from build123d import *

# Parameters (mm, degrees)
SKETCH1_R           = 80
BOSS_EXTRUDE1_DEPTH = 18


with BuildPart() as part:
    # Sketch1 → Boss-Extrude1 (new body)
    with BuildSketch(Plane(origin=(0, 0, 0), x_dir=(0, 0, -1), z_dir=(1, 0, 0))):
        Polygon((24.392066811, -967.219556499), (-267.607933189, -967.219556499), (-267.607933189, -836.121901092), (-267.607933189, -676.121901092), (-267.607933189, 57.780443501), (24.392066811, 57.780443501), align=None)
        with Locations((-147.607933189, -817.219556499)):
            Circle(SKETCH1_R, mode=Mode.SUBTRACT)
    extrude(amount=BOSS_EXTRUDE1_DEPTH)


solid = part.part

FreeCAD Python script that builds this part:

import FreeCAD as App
import Part
import Sketcher
Q = App.Units.Quantity

doc = App.newDocument("Part")
body = doc.addObject("PartDesign::Body", "Body")

sketch1 = body.newObject("Sketcher::SketchObject", "Sketch")
sketch1.AttachmentSupport = (doc.getObject("YZ_Plane"), [""])
sketch1.MapMode = "FlatFace"
sketch1.addGeometry(Part.LineSegment(App.Vector(-967, 268, 0), App.Vector(-967, -24, 0)), False)
sketch1.addGeometry(Part.LineSegment(App.Vector(-967, -24, 0), App.Vector(58, -24, 0)), False)
sketch1.addGeometry(Part.LineSegment(App.Vector(58, -24, 0), App.Vector(58, 268, 0)), False)
sketch1.addGeometry(Part.LineSegment(App.Vector(58, 268, 0), App.Vector(-967, 268, 0)), False)
sketch1.addGeometry(Part.Circle(App.Vector(-817, 148, 0), App.Vector(0, 0, 1), 80), False)
sketch1.addConstraint(Sketcher.Constraint("Coincident", 0, 2, 1, 1))
sketch1.addConstraint(Sketcher.Constraint("Coincident", 1, 2, 2, 1))
sketch1.addConstraint(Sketcher.Constraint("Coincident", 2, 2, 3, 1))
sketch1.addConstraint(Sketcher.Constraint("Coincident", 3, 2, 0, 1))
sketch1.addConstraint(Sketcher.Constraint("Vertical", 0))
sketch1.addConstraint(Sketcher.Constraint("Horizontal", 1))
sketch1.addConstraint(Sketcher.Constraint("Vertical", 2))
sketch1.addConstraint(Sketcher.Constraint("Horizontal", 3))
sketch1.addConstraint(Sketcher.Constraint("Diameter", 4, Q("160 mm")))
sketch1.addConstraint(Sketcher.Constraint("DistanceX", 1, 1, 1, 2, Q("1025 mm")))
sketch1.addConstraint(Sketcher.Constraint("DistanceY", 0, 2, 0, 1, Q("292 mm")))
sketch1.addConstraint(Sketcher.Constraint("DistanceX", 0, 2, 4, 3, Q("150 mm")))
sketch1.addConstraint(Sketcher.Constraint("DistanceY", 0, 2, 4, 3, Q("172 mm")))
sketch1.addConstraint(Sketcher.Constraint("DistanceX", 4, 3, -1, 1, Q("817.219556 mm")))
sketch1.addConstraint(Sketcher.Constraint("DistanceY", -1, 1, 4, 3, Q("147.607933 mm")))
pad1 = body.newObject("PartDesign::Pad", "Pad")
pad1.Profile = sketch1
pad1.Length = 18

doc.recompute()
